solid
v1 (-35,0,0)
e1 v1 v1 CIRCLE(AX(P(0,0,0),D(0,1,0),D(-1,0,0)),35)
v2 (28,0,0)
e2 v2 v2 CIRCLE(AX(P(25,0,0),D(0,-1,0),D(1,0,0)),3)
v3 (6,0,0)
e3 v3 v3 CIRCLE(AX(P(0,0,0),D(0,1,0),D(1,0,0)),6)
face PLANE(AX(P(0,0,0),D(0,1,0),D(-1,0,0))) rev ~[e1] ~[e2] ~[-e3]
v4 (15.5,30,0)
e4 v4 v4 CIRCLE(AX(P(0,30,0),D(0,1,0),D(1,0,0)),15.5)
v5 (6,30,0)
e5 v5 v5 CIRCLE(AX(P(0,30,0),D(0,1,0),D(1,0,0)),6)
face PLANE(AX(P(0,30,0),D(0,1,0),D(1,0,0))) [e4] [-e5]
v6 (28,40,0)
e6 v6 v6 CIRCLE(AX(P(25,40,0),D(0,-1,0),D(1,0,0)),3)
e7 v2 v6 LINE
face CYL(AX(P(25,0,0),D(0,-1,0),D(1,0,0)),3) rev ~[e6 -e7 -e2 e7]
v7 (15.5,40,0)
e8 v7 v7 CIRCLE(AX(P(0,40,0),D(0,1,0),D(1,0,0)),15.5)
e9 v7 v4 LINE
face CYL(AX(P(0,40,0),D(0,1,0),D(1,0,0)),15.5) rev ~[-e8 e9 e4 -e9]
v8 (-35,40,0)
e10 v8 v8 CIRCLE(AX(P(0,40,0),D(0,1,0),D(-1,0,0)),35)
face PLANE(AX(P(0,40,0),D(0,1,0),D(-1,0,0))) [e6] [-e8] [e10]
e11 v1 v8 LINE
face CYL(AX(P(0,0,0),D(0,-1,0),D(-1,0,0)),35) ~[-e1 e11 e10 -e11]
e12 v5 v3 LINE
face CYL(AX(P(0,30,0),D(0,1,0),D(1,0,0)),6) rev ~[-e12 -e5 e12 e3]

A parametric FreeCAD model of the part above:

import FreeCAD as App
import Part
import Sketcher

doc = App.newDocument("Part")
params = doc.addObject("Spreadsheet::Sheet", "Params")
for row, (alias, value) in enumerate([
    ("sketch1_diameter", "70 mm"),
    ("pad1_length", "40 mm"),
    ("sketch2_diameter", "31 mm"),
    ("pocket1_length", "10 mm"),
    ("sketch3_diameter", "12 mm"),
    ("sketch4_diameter", "6 mm"),
], start=1):
    params.set(f"A{row}", alias)
    params.set(f"B{row}", "=" + value)
    params.setAlias(f"B{row}", alias)

body = doc.addObject("PartDesign::Body", "Body")

sketch1 = body.newObject("Sketcher::SketchObject", "Sketch")
sketch1.AttachmentSupport = (doc.getObject("XZ_Plane"), [""])
sketch1.MapMode = "FlatFace"
sketch1.addGeometry(Part.Circle(App.Vector(0, 0, 0), App.Vector(0, 0, 1), 35), False)
sketch1.addConstraint(Sketcher.Constraint("Coincident", 0, 3, -1, 1))
sketch1.addConstraint(Sketcher.Constraint("Diameter", 0, 70.0))
sketch1.setExpression("Constraints[1]", "Params.sketch1_diameter")
pad1 = body.newObject("PartDesign::Pad", "Pad")
pad1.Profile = sketch1
pad1.setExpression("Length", "Params.pad1_length")
pad1.Reversed = True

sketch2 = body.newObject("Sketcher::SketchObject", "Sketch001")
sketch2.AttachmentSupport = (doc.getObject("XZ_Plane"), [""])
sketch2.MapMode = "FlatFace"
sketch2.AttachmentOffset = App.Placement(App.Vector(0, 0, -40), App.Rotation())
sketch2.addGeometry(Part.Circle(App.Vector(0, 0, 0), App.Vector(0, 0, 1), 16), False)
sketch2.addConstraint(Sketcher.Constraint("Coincident", 0, 3, -1, 1))
sketch2.addConstraint(Sketcher.Constraint("Diameter", 0, 31.0))
sketch2.setExpression("Constraints[1]", "Params.sketch2_diameter")
pocket1 = body.newObject("PartDesign::Pocket", "Pocket")
pocket1.Profile = sketch2
pocket1.setExpression("Length", "Params.pocket1_length")
pocket1.Reversed = True

sketch3 = body.newObject("Sketcher::SketchObject", "Sketch002")
sketch3.AttachmentSupport = (doc.getObject("XZ_Plane"), [""])
sketch3.MapMode = "FlatFace"
sketch3.AttachmentOffset = App.Placement(App.Vector(0, 0, -30), App.Rotation())
sketch3.addGeometry(Part.Circle(App.Vector(0, 0, 0), App.Vector(0, 0, 1), 6), False)
sketch3.addConstraint(Sketcher.Constraint("Coincident", 0, 3, -1, 1))
sketch3.addConstraint(Sketcher.Constraint("Diameter", 0, 12.0))
sketch3.setExpression("Constraints[1]", "Params.sketch3_diameter")
pocket2 = body.newObject("PartDesign::Pocket", "Pocket001")
pocket2.Profile = sketch3
pocket2.Type = "ThroughAll"
pocket2.Reversed = True

sketch4 = body.newObject("Sketcher::SketchObject", "Sketch003")
sketch4.AttachmentSupport = (doc.getObject("XZ_Plane"), [""])
sketch4.MapMode = "FlatFace"
sketch4.addGeometry(Part.Circle(App.Vector(25, 0, 0), App.Vector(0, 0, 1), 3), False)
sketch4.addConstraint(Sketcher.Constraint("PointOnObject", 0, 3, -1))
sketch4.addConstraint(Sketcher.Constraint("Diameter", 0, 6.0))
sketch4.addConstraint(Sketcher.Constraint("DistanceX", -1, 1, 0, 3, 25.0))
sketch4.setExpression("Constraints[1]", "Params.sketch4_diameter")
pocket3 = body.newObject("PartDesign::Pocket", "Pocket002")
pocket3.Profile = sketch4
pocket3.Type = "ThroughAll"

doc.recompute()
